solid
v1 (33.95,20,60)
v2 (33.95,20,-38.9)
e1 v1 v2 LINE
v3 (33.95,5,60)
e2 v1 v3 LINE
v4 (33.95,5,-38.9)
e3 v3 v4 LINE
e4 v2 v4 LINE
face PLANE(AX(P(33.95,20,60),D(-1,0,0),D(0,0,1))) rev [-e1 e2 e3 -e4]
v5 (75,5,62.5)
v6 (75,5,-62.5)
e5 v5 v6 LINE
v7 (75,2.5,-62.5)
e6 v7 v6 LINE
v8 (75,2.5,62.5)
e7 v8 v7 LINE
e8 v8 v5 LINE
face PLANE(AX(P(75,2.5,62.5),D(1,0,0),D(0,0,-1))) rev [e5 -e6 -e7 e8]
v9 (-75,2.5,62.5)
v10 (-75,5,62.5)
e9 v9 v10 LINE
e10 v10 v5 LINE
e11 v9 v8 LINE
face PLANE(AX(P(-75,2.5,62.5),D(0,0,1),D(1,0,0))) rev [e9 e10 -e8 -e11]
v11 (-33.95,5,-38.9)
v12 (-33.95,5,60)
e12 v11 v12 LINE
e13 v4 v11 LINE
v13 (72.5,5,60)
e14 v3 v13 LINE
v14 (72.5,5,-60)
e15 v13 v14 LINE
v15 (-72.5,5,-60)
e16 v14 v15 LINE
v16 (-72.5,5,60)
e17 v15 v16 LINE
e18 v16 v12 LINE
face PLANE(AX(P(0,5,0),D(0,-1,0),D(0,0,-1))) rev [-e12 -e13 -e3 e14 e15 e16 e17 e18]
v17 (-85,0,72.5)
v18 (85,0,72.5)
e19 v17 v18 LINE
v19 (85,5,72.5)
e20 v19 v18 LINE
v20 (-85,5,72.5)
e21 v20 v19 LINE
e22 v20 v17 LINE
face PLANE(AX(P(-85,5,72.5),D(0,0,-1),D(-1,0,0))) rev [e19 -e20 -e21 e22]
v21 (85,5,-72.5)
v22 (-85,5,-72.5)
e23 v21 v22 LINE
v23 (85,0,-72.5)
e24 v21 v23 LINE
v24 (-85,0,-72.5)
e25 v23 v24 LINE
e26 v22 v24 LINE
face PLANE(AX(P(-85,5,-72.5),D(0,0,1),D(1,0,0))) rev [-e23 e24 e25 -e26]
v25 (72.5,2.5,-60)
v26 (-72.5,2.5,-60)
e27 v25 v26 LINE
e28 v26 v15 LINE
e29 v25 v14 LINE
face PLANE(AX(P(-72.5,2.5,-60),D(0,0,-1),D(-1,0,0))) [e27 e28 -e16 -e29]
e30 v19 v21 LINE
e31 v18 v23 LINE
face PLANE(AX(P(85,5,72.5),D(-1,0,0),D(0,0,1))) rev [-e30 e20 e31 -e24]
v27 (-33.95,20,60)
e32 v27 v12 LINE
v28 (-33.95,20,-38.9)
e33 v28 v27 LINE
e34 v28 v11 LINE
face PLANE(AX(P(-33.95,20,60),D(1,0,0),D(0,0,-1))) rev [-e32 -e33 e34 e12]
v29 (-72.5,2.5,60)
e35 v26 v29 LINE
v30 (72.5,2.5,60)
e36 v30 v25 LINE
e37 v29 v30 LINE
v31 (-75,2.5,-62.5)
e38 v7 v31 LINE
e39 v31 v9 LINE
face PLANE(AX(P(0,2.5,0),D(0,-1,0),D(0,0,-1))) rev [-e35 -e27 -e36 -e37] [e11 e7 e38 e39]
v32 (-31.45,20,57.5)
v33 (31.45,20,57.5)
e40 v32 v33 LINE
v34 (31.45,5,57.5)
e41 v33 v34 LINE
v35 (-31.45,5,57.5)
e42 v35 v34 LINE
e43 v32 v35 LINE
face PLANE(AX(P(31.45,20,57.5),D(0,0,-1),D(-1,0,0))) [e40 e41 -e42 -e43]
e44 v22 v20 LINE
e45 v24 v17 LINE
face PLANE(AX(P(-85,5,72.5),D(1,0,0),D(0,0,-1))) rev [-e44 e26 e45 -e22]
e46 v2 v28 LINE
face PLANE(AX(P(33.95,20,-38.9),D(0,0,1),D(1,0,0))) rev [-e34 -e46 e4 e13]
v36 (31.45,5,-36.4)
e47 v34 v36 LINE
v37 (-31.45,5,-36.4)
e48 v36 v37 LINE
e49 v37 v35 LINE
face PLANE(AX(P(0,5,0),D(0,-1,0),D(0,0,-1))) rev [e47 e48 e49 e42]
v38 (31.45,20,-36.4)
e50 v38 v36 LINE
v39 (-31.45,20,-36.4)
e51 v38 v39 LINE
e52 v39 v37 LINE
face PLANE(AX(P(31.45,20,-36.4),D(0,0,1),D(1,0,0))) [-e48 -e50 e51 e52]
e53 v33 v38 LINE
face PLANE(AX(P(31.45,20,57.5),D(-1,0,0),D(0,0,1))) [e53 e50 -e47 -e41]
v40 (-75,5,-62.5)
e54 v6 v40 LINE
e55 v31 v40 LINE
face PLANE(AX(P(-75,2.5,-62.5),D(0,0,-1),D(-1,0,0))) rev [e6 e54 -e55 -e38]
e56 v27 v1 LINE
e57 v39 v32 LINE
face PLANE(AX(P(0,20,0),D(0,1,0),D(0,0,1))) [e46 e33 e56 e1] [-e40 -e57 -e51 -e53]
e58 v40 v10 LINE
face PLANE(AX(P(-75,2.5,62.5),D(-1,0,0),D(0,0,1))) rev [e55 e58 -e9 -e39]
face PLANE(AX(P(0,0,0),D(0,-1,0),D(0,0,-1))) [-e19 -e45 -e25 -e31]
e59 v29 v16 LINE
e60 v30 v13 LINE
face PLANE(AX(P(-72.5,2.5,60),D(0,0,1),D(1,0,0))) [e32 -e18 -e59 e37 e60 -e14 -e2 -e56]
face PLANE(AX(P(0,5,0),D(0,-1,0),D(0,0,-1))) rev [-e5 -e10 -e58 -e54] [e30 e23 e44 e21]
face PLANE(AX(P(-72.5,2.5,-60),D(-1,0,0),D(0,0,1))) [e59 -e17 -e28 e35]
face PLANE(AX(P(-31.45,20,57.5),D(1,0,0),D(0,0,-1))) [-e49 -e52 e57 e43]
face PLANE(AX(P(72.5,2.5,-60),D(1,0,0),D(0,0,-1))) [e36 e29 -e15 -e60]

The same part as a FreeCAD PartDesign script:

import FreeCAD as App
import Part
import Sketcher

V = App.Vector
Q = App.Units.Quantity

doc = App.newDocument("Part")
body = doc.addObject("PartDesign::Body", "Body")

sketch1 = doc.addObject("Sketcher::SketchObject", "Sketch")
body.addObject(sketch1)
sketch1.AttachmentSupport = (doc.XZ_Plane, [""])
sketch1.MapMode = "FlatFace"
sketch1.addGeometry([
    Part.LineSegment(V(-85, -72, 0), V(-85, 72, 0)),
    Part.LineSegment(V(-85, 72, 0), V(85, 72, 0)),
    Part.LineSegment(V(85, 72, 0), V(85, -72, 0)),
    Part.LineSegment(V(85, -72, 0), V(-85, -72, 0)),
], False)
sketch1.addConstraint([
    Sketcher.Constraint("Coincident", 0, 2, 1, 1),
    Sketcher.Constraint("Coincident", 1, 2, 2, 1),
    Sketcher.Constraint("Coincident", 2, 2, 3, 1),
    Sketcher.Constraint("Coincident", 3, 2, 0, 1),
    Sketcher.Constraint("Vertical", 0),
    Sketcher.Constraint("Horizontal", 1),
    Sketcher.Constraint("Vertical", 2),
    Sketcher.Constraint("Horizontal", 3),
    Sketcher.Constraint("Symmetric", 0, 2, 2, 2, -1, 1),
    Sketcher.Constraint("DistanceX", 1, 1, 1, 2, Q("170 mm")),
    Sketcher.Constraint("DistanceY", 0, 1, 0, 2, Q("145 mm")),
])
pad1 = doc.addObject("PartDesign::Pad", "Pad")
body.addObject(pad1)
pad1.Profile = sketch1
pad1.Length = 5
pad1.Reversed = True

sketch2 = doc.addObject("Sketcher::SketchObject", "Sketch001")
body.addObject(sketch2)
sketch2.AttachmentSupport = (doc.XZ_Plane, [""])
sketch2.MapMode = "FlatFace"
sketch2.AttachmentOffset = App.Placement(V(0, 0, -5), App.Rotation())
sketch2.addGeometry([
    Part.LineSegment(V(-75, -62, 0), V(-75, 62, 0)),
    Part.LineSegment(V(-75, 62, 0), V(75, 62, 0)),
    Part.LineSegment(V(75, 62, 0), V(75, -62, 0)),
    Part.LineSegment(V(75, -62, 0), V(-75, -62, 0)),
    Part.LineSegment(V(72, 60, 0), V(-72, 60, 0)),
    Part.LineSegment(V(-72, 60, 0), V(-72, -60, 0)),
    Part.LineSegment(V(-72, -60, 0), V(72, -60, 0)),
    Part.LineSegment(V(72, -60, 0), V(72, 60, 0)),
], False)
sketch2.addConstraint([
    Sketcher.Constraint("Coincident", 0, 2, 1, 1),
    Sketcher.Constraint("Coincident", 1, 2, 2, 1),
    Sketcher.Constraint("Coincident", 2, 2, 3, 1),
    Sketcher.Constraint("Coincident", 3, 2, 0, 1),
    Sketcher.Constraint("Coincident", 4, 2, 5, 1),
    Sketcher.Constraint("Coincident", 5, 2, 6, 1),
    Sketcher.Constraint("Coincident", 6, 2, 7, 1),
    Sketcher.Constraint("Coincident", 7, 2, 4, 1),
    Sketcher.Constraint("Vertical", 0),
    Sketcher.Constraint("Horizontal", 1),
    Sketcher.Constraint("Vertical", 2),
    Sketcher.Constraint("Horizontal", 3),
    Sketcher.Constraint("Horizontal", 4),
    Sketcher.Constraint("Vertical", 5),
    Sketcher.Constraint("Horizontal", 6),
    Sketcher.Constraint("Vertical", 7),
    Sketcher.Constraint("Symmetric", 0, 2, 2, 2, -1, 1),
    Sketcher.Constraint("Symmetric", 4, 2, 6, 2, -1, 1),
    Sketcher.Constraint("DistanceX", 1, 1, 1, 2, Q("150 mm")),
    Sketcher.Constraint("DistanceX", 4, 2, 4, 1, Q("145 mm")),
    Sketcher.Constraint("DistanceY", 0, 1, 0, 2, Q("125 mm")),
    Sketcher.Constraint("DistanceY", 5, 2, 5, 1, Q("120 mm")),
])
pocket1 = doc.addObject("PartDesign::Pocket", "Pocket")
body.addObject(pocket1)
pocket1.Profile = sketch2
pocket1.Length = 2.5
pocket1.Reversed = True

sketch3 = doc.addObject("Sketcher::SketchObject", "Sketch002")
body.addObject(sketch3)
sketch3.AttachmentSupport = (doc.XZ_Plane, [""])
sketch3.MapMode = "FlatFace"
sketch3.AttachmentOffset = App.Placement(V(0, 0, -5), App.Rotation())
sketch3.addGeometry([
    Part.LineSegment(V(-34, -39, 0), V(-34, 60, 0)),
    Part.LineSegment(V(-34, 60, 0), V(34, 60, 0)),
    Part.LineSegment(V(34, 60, 0), V(34, -39, 0)),
    Part.LineSegment(V(34, -39, 0), V(-34, -39, 0)),
    Part.LineSegment(V(31, 58, 0), V(-31, 58, 0)),
    Part.LineSegment(V(-31, 58, 0), V(-31, -36, 0)),
    Part.LineSegment(V(-31, -36, 0), V(31, -36, 0)),
    Part.LineSegment(V(31, -36, 0), V(31, 58, 0)),
], False)
sketch3.addConstraint([
    Sketcher.Constraint("Coincident", 0, 2, 1, 1),
    Sketcher.Constraint("Coincident", 1, 2, 2, 1),
    Sketcher.Constraint("Coincident", 2, 2, 3, 1),
    Sketcher.Constraint("Coincident", 3, 2, 0, 1),
    Sketcher.Constraint("Coincident", 4, 2, 5, 1),
    Sketcher.Constraint("Coincident", 5, 2, 6, 1),
    Sketcher.Constraint("Coincident", 6, 2, 7, 1),
    Sketcher.Constraint("Coincident", 7, 2, 4, 1),
    Sketcher.Constraint("Vertical", 0),
    Sketcher.Constraint("Horizontal", 1),
    Sketcher.Constraint("Vertical", 2),
    Sketcher.Constraint("Horizontal", 3),
    Sketcher.Constraint("Horizontal", 4),
    Sketcher.Constraint("Vertical", 5),
    Sketcher.Constraint("Horizontal", 6),
    Sketcher.Constraint("Vertical", 7),
    Sketcher.Constraint("DistanceX", 1, 1, 1, 2, Q("67.9 mm")),
    Sketcher.Constraint("DistanceX", 4, 2, 4, 1, Q("62.9 mm")),
    Sketcher.Constraint("DistanceY", 0, 1, 0, 2, Q("98.9 mm")),
    Sketcher.Constraint("DistanceY", 5, 2, 5, 1, Q("93.9 mm")),
    Sketcher.Constraint("DistanceY", -1, 1, 0, 2, Q("60 mm")),
    Sketcher.Constraint("DistanceY", -1, 1, 4, 2, Q("57.5 mm")),
    Sketcher.Constraint("DistanceX", 0, 2, 4, 2, Q("2.5 mm")),
    Sketcher.Constraint("DistanceX", 0, 2, -1, 1, Q("33.95 mm")),
])
pad2 = doc.addObject("PartDesign::Pad", "Pad001")
body.addObject(pad2)
pad2.Profile = sketch3
pad2.Length = 15
pad2.Reversed = True

doc.recompute()
